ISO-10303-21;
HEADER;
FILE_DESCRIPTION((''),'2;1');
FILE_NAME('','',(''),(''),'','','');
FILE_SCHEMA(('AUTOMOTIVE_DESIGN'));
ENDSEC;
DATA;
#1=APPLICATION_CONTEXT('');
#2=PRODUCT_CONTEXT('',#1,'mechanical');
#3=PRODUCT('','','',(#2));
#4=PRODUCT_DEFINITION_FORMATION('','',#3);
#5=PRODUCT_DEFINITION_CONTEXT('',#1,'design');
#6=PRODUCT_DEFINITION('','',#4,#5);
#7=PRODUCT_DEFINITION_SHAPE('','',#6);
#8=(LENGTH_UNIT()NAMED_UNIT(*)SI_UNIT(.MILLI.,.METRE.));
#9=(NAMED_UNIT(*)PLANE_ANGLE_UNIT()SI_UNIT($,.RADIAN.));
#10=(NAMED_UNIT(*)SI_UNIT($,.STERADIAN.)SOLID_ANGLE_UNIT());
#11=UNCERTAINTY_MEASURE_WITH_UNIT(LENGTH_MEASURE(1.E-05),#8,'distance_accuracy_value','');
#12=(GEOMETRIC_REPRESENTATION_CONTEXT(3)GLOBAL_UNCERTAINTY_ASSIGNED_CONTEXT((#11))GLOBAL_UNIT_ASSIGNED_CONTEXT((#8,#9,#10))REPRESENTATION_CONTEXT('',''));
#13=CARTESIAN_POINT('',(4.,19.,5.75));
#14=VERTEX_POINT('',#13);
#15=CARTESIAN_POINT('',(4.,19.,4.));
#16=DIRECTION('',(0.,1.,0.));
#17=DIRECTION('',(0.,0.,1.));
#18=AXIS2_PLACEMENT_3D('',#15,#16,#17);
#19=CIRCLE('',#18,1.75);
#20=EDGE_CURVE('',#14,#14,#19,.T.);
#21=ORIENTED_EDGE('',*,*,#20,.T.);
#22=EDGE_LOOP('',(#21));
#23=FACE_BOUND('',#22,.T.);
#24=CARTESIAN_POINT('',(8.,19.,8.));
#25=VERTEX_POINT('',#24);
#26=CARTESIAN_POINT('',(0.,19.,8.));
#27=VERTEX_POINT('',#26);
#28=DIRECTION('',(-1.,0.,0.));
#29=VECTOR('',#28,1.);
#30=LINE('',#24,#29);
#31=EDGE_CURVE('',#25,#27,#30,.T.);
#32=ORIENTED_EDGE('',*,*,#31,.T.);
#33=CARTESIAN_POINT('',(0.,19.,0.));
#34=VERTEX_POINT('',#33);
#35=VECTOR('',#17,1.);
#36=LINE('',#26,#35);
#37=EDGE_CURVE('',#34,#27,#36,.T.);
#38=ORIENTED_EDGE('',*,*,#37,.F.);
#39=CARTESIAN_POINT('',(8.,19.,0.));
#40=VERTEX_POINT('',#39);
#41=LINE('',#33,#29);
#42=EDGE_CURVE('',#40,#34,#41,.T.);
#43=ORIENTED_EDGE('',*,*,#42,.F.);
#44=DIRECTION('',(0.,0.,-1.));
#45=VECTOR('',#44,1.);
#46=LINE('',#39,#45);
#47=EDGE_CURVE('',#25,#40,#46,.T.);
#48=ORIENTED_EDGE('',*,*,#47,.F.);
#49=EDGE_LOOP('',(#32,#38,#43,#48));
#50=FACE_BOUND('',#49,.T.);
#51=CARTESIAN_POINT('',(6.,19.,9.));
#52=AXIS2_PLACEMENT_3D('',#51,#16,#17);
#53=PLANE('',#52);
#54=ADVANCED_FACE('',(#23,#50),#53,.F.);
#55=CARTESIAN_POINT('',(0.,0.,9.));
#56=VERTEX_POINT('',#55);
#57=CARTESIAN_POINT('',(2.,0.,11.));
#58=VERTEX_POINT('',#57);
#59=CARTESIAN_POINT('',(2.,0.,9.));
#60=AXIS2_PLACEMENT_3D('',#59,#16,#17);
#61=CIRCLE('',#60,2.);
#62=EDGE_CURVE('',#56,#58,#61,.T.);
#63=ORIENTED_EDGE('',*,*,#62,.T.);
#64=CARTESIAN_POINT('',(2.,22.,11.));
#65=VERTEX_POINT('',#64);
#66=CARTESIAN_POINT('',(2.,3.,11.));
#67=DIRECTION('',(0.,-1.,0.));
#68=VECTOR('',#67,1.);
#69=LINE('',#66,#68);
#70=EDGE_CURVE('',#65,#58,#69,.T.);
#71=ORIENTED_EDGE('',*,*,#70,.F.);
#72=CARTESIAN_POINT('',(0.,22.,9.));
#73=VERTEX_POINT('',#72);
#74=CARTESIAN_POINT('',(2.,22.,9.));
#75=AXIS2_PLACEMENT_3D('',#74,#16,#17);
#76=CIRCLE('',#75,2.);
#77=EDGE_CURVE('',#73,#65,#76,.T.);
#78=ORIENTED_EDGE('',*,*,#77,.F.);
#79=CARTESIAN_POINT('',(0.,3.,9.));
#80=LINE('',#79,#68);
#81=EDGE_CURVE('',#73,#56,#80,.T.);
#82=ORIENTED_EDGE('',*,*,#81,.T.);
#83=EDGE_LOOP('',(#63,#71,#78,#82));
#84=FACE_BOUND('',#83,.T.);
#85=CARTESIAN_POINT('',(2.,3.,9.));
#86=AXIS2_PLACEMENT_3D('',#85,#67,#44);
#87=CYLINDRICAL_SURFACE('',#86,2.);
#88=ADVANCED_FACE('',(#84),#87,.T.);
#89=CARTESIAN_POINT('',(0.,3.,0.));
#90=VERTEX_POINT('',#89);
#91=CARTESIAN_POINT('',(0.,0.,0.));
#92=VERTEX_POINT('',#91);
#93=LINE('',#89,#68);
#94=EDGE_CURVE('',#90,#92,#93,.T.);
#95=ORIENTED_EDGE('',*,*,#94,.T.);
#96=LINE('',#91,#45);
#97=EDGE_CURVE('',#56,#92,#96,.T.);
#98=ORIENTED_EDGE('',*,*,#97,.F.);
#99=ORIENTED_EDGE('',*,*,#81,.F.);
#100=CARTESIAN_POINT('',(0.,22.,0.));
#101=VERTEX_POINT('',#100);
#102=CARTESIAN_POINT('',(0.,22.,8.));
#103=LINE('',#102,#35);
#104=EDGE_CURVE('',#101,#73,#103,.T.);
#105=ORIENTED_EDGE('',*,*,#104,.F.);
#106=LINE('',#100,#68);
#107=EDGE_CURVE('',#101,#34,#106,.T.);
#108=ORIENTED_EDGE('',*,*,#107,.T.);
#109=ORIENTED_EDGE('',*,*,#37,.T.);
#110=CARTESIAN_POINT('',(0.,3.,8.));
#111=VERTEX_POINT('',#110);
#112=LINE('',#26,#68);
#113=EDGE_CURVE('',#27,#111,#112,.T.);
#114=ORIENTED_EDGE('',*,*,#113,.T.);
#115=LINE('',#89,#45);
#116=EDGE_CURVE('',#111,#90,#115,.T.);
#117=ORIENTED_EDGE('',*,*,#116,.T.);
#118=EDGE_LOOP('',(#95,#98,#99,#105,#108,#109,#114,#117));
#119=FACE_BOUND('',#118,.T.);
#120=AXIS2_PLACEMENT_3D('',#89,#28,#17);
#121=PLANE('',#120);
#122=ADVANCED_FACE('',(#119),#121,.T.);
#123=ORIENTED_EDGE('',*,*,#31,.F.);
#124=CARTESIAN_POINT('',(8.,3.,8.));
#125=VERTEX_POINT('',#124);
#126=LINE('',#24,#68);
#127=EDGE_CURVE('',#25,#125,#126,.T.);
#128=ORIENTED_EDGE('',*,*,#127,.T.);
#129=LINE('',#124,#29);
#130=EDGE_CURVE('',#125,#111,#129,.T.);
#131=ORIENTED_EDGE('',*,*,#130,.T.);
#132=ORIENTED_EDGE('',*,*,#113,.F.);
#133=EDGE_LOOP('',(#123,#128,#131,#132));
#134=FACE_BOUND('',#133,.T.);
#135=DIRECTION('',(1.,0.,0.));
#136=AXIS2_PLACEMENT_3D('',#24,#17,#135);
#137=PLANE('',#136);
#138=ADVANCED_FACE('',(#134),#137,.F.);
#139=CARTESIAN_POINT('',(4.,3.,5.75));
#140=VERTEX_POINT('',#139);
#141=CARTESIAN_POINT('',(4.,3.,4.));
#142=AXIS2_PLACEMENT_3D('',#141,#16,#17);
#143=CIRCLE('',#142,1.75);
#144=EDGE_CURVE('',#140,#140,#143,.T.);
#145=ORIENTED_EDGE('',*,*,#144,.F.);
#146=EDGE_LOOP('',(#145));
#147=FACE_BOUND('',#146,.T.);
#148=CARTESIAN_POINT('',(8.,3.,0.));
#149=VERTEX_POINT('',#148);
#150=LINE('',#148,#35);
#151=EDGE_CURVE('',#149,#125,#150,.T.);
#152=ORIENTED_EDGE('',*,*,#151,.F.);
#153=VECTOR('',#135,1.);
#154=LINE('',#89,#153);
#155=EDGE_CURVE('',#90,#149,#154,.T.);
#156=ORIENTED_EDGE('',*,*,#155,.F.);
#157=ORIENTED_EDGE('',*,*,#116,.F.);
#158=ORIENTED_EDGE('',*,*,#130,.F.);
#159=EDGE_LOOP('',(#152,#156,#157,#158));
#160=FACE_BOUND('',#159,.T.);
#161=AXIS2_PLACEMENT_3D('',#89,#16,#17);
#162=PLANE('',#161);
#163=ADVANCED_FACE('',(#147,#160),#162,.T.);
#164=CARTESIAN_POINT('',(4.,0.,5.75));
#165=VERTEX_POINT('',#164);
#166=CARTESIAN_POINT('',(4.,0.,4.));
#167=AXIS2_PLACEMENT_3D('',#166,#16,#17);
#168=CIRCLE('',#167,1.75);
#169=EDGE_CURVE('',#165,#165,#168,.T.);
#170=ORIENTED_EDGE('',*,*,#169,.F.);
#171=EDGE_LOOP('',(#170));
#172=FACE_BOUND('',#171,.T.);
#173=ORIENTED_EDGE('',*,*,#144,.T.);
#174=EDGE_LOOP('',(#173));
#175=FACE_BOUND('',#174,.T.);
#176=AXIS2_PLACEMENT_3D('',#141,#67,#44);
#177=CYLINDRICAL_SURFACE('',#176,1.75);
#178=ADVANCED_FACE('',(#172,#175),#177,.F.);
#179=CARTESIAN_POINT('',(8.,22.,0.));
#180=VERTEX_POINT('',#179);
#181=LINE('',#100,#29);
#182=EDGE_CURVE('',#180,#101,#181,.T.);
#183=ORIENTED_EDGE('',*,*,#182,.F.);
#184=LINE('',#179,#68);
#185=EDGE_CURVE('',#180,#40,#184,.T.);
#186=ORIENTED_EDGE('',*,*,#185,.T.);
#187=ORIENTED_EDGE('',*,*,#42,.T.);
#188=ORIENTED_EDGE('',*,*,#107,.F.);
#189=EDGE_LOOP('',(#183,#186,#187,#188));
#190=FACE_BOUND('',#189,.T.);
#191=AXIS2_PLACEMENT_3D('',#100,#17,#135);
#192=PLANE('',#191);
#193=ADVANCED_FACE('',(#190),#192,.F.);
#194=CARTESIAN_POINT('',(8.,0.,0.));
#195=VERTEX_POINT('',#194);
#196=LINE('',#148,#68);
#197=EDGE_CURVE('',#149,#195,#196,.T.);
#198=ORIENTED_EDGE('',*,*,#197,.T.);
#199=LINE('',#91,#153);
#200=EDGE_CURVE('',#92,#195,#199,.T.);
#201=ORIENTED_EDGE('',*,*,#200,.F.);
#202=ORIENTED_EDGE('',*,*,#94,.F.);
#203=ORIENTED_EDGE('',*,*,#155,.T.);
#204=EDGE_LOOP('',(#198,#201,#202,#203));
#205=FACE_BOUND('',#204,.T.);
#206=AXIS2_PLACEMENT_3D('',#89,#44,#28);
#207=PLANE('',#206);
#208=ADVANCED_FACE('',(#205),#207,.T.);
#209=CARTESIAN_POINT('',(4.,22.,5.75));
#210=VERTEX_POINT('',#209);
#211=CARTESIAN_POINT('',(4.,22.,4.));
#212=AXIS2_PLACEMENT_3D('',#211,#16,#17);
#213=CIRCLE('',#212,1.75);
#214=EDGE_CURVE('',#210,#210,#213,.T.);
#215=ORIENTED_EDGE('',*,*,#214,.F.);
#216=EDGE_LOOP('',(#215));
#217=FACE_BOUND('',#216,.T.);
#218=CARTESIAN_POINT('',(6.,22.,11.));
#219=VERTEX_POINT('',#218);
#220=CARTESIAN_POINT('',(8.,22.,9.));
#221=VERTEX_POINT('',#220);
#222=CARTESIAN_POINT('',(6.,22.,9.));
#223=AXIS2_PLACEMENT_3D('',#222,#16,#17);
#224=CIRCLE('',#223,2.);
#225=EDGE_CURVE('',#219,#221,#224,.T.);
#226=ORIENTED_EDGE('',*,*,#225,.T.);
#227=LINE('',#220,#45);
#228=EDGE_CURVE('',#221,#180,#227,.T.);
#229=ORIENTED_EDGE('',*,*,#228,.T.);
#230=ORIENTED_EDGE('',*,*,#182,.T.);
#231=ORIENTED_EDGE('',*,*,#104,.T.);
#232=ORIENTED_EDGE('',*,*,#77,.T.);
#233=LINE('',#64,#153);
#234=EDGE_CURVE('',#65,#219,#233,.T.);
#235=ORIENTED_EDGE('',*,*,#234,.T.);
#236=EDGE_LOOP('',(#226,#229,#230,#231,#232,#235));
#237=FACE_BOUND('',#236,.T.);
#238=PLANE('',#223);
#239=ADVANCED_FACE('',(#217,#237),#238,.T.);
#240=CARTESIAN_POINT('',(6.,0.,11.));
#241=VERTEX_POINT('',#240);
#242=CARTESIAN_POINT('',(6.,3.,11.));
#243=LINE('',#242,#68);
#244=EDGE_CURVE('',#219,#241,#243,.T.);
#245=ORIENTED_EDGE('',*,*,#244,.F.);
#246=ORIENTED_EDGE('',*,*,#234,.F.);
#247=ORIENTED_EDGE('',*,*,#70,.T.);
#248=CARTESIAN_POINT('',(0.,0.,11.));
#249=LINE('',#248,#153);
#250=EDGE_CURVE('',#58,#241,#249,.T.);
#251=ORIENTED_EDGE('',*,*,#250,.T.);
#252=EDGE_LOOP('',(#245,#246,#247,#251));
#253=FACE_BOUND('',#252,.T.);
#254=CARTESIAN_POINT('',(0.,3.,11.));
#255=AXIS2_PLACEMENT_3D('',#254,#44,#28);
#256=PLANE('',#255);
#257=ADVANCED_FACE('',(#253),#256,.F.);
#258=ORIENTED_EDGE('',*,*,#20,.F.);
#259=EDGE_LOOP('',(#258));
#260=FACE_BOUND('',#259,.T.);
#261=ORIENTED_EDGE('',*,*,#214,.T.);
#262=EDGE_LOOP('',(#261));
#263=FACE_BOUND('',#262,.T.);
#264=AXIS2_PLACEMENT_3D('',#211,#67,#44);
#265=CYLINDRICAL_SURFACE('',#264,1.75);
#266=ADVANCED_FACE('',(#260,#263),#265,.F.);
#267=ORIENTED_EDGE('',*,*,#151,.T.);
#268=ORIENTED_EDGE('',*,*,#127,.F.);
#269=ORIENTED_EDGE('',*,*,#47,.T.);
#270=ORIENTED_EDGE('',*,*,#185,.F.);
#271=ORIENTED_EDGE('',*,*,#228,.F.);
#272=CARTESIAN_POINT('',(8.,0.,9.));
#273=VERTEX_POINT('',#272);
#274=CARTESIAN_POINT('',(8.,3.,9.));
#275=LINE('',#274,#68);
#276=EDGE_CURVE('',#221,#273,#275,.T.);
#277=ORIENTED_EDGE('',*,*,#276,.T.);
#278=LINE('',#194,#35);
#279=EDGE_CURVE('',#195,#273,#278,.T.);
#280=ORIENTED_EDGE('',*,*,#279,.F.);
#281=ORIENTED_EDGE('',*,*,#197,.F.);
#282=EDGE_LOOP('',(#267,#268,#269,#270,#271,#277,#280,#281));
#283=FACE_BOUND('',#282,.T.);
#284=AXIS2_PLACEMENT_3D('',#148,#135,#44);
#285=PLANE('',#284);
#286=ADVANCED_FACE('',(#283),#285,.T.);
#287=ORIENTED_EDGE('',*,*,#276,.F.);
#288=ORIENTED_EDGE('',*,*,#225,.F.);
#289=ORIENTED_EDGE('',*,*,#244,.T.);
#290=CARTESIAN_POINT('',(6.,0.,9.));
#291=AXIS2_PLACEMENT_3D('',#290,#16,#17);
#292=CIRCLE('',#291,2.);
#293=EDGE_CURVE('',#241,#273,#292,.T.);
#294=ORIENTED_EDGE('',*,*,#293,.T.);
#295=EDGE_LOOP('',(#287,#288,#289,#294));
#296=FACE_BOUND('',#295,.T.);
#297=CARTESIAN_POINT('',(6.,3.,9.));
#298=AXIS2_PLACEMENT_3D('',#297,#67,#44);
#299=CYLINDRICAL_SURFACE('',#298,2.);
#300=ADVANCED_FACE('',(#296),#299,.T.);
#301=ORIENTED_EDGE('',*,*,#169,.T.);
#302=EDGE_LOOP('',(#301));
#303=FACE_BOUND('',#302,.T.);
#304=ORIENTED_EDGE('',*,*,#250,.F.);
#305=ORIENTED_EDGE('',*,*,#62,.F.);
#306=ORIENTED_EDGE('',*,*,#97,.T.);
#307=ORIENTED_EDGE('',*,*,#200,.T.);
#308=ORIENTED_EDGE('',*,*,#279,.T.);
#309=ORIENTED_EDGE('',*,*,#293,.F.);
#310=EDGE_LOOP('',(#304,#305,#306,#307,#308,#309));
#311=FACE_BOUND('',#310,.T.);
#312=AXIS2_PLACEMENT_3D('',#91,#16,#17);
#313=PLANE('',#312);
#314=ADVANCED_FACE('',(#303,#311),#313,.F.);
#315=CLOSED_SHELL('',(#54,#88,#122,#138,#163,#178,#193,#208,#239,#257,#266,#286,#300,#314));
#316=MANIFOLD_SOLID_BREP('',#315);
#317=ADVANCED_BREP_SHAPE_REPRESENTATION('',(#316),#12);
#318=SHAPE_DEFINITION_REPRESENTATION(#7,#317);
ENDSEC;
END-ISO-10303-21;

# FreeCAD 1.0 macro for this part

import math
import FreeCAD as App
import Part
import Sketcher

doc = App.newDocument("Part")
body = doc.addObject("PartDesign::Body", "Body")

# Sketch on XZ plane
sketch1 = doc.addObject("Sketcher::SketchObject", "Sketch")
body.addObject(sketch1)
sketch1.AttachmentSupport = (doc.XZ_Plane, [""])
sketch1.MapMode = "FlatFace"
sketch1.addGeometry(Part.LineSegment(App.Vector(0, 0, 0), App.Vector(0, 9, 0)), False)
sketch1.addGeometry(Part.ArcOfCircle(Part.Circle(App.Vector(2, 9, 0), App.Vector(0, 0, 1), 2), math.radians(90), math.radians(180)), False)
sketch1.addGeometry(Part.LineSegment(App.Vector(2, 11, 0), App.Vector(6, 11, 0)), False)
sketch1.addGeometry(Part.ArcOfCircle(Part.Circle(App.Vector(6, 9, 0), App.Vector(0, 0, 1), 2), math.radians(0), math.radians(90)), False)
sketch1.addGeometry(Part.LineSegment(App.Vector(8, 9, 0), App.Vector(8, 0, 0)), False)
sketch1.addGeometry(Part.LineSegment(App.Vector(8, 0, 0), App.Vector(0, 0, 0)), False)
sketch1.addGeometry(Part.Circle(App.Vector(4, 4, 0), App.Vector(0, 0, 1), 1.75), False)
sketch1.addConstraint(Sketcher.Constraint("Tangent", 0, 2, 1, 2))
sketch1.addConstraint(Sketcher.Constraint("Tangent", 1, 1, 2, 1))
sketch1.addConstraint(Sketcher.Constraint("Tangent", 2, 2, 3, 2))
sketch1.addConstraint(Sketcher.Constraint("Tangent", 3, 1, 4, 1))
sketch1.addConstraint(Sketcher.Constraint("Coincident", 4, 2, 5, 1))
sketch1.addConstraint(Sketcher.Constraint("Coincident", 5, 2, 0, 1))
sketch1.addConstraint(Sketcher.Constraint("Vertical", 0))
sketch1.addConstraint(Sketcher.Constraint("Horizontal", 2))
sketch1.addConstraint(Sketcher.Constraint("Vertical", 4))
sketch1.addConstraint(Sketcher.Constraint("Horizontal", 5))
sketch1.addConstraint(Sketcher.Constraint("Coincident", 5, 2, -1, 1))
sketch1.addConstraint(Sketcher.Constraint("Equal", 1, 3))
sketch1.addConstraint(Sketcher.Constraint("Radius", 1, 2.0))
sketch1.addConstraint(Sketcher.Constraint("Diameter", 6, 3.5))
sketch1.addConstraint(Sketcher.Constraint("DistanceX", 2, 1, 2, 2, 4.0))
sketch1.addConstraint(Sketcher.Constraint("DistanceY", 0, 1, 0, 2, 9.0))
sketch1.addConstraint(Sketcher.Constraint("DistanceX", -1, 1, 6, 3, 4.0))
sketch1.addConstraint(Sketcher.Constraint("DistanceY", -1, 1, 6, 3, 4.0))
pad1 = doc.addObject("PartDesign::Pad", "Pad")
body.addObject(pad1)
pad1.Profile = sketch1
pad1.Length = 3
pad1.Reversed = True

# Sketch on XZ plane
sketch2 = doc.addObject("Sketcher::SketchObject", "Sketch001")
body.addObject(sketch2)
sketch2.AttachmentSupport = (doc.XZ_Plane, [""])
sketch2.MapMode = "FlatFace"
sketch2.AttachmentOffset = App.Placement(App.Vector(0, 0, -3), App.Rotation())
sketch2.addGeometry(Part.LineSegment(App.Vector(8, 8, 0), App.Vector(0, 8, 0)), False)
sketch2.addGeometry(Part.LineSegment(App.Vector(0, 8, 0), App.Vector(0, 9, 0)), False)
sketch2.addGeometry(Part.ArcOfCircle(Part.Circle(App.Vector(2, 9, 0), App.Vector(0, 0, 1), 2), math.radians(90), math.radians(180)), False)
sketch2.addGeometry(Part.LineSegment(App.Vector(2, 11, 0), App.Vector(6, 11, 0)), False)
sketch2.addGeometry(Part.ArcOfCircle(Part.Circle(App.Vector(6, 9, 0), App.Vector(0, 0, 1), 2), math.radians(0), math.radians(90)), False)
sketch2.addGeometry(Part.LineSegment(App.Vector(8, 9, 0), App.Vector(8, 8, 0)), False)
sketch2.addConstraint(Sketcher.Constraint("Coincident", 0, 2, 1, 1))
sketch2.addConstraint(Sketcher.Constraint("Tangent", 1, 2, 2, 2))
sketch2.addConstraint(Sketcher.Constraint("Tangent", 2, 1, 3, 1))
sketch2.addConstraint(Sketcher.Constraint("Tangent", 3, 2, 4, 2))
sketch2.addConstraint(Sketcher.Constraint("Tangent", 4, 1, 5, 1))
sketch2.addConstraint(Sketcher.Constraint("Coincident", 5, 2, 0, 1))
sketch2.addConstraint(Sketcher.Constraint("Horizontal", 0))
sketch2.addConstraint(Sketcher.Constraint("Vertical", 1))
sketch2.addConstraint(Sketcher.Constraint("Horizontal", 3))
sketch2.addConstraint(Sketcher.Constraint("Vertical", 5))
sketch2.addConstraint(Sketcher.Constraint("Equal", 2, 4))
sketch2.addConstraint(Sketcher.Constraint("PointOnObject", 0, 2, -2))
sketch2.addConstraint(Sketcher.Constraint("Radius", 2, 2.0))
sketch2.addConstraint(Sketcher.Constraint("DistanceX", 0, 2, 0, 1, 8.0))
sketch2.addConstraint(Sketcher.Constraint("DistanceY", 1, 1, 1, 2, 1.0))
sketch2.addConstraint(Sketcher.Constraint("DistanceY", -1, 1, 2, 3, 9.0))
pad2 = doc.addObject("PartDesign::Pad", "Pad001")
body.addObject(pad2)
pad2.Profile = sketch2
pad2.Length = 16
pad2.Reversed = True

# Sketch on XZ plane
sketch3 = doc.addObject("Sketcher::SketchObject", "Sketch002")
body.addObject(sketch3)
sketch3.AttachmentSupport = (doc.XZ_Plane, [""])
sketch3.MapMode = "FlatFace"
sketch3.AttachmentOffset = App.Placement(App.Vector(0, 0, -19), App.Rotation())
sketch3.addGeometry(Part.LineSegment(App.Vector(8, 9, 0), App.Vector(8, 0, 0)), False)
sketch3.addGeometry(Part.LineSegment(App.Vector(8, 0, 0), App.Vector(0, 0, 0)), False)
sketch3.addGeometry(Part.LineSegment(App.Vector(0, 0, 0), App.Vector(0, 9, 0)), False)
sketch3.addGeometry(Part.ArcOfCircle(Part.Circle(App.Vector(2, 9, 0), App.Vector(0, 0, 1), 2), math.radians(90), math.radians(180)), False)
sketch3.addGeometry(Part.LineSegment(App.Vector(2, 11, 0), App.Vector(6, 11, 0)), False)
sketch3.addGeometry(Part.ArcOfCircle(Part.Circle(App.Vector(6, 9, 0), App.Vector(0, 0, 1), 2), math.radians(0), math.radians(90)), False)
sketch3.addGeometry(Part.Circle(App.Vector(4, 4, 0), App.Vector(0, 0, 1), 1.75), False)
sketch3.addConstraint(Sketcher.Constraint("Coincident", 0, 2, 1, 1))
sketch3.addConstraint(Sketcher.Constraint("Coincident", 1, 2, 2, 1))
sketch3.addConstraint(Sketcher.Constraint("Tangent", 2, 2, 3, 2))
sketch3.addConstraint(Sketcher.Constraint("Tangent", 3, 1, 4, 1))
sketch3.addConstraint(Sketcher.Constraint("Tangent", 4, 2, 5, 2))
sketch3.addConstraint(Sketcher.Constraint("Tangent", 5, 1, 0, 1))
sketch3.addConstraint(Sketcher.Constraint("Vertical", 0))
sketch3.addConstraint(Sketcher.Constraint("Horizontal", 1))
sketch3.addConstraint(Sketcher.Constraint("Vertical", 2))
sketch3.addConstraint(Sketcher.Constraint("Horizontal", 4))
sketch3.addConstraint(Sketcher.Constraint("Coincident", 1, 2, -1, 1))
sketch3.addConstraint(Sketcher.Constraint("Equal", 3, 5))
sketch3.addConstraint(Sketcher.Constraint("Radius", 3, 2.0))
sketch3.addConstraint(Sketcher.Constraint("Diameter", 6, 3.5))
sketch3.addConstraint(Sketcher.Constraint("DistanceX", 1, 2, 1, 1, 8.0))
sketch3.addConstraint(Sketcher.Constraint("DistanceY", 0, 2, 0, 1, 9.0))
sketch3.addConstraint(Sketcher.Constraint("DistanceX", -1, 1, 6, 3, 4.0))
sketch3.addConstraint(Sketcher.Constraint("DistanceY", -1, 1, 6, 3, 4.0))
pad3 = doc.addObject("PartDesign::Pad", "Pad002")
body.addObject(pad3)
pad3.Profile = sketch3
pad3.Length = 3
pad3.Reversed = True

doc.recompute()
